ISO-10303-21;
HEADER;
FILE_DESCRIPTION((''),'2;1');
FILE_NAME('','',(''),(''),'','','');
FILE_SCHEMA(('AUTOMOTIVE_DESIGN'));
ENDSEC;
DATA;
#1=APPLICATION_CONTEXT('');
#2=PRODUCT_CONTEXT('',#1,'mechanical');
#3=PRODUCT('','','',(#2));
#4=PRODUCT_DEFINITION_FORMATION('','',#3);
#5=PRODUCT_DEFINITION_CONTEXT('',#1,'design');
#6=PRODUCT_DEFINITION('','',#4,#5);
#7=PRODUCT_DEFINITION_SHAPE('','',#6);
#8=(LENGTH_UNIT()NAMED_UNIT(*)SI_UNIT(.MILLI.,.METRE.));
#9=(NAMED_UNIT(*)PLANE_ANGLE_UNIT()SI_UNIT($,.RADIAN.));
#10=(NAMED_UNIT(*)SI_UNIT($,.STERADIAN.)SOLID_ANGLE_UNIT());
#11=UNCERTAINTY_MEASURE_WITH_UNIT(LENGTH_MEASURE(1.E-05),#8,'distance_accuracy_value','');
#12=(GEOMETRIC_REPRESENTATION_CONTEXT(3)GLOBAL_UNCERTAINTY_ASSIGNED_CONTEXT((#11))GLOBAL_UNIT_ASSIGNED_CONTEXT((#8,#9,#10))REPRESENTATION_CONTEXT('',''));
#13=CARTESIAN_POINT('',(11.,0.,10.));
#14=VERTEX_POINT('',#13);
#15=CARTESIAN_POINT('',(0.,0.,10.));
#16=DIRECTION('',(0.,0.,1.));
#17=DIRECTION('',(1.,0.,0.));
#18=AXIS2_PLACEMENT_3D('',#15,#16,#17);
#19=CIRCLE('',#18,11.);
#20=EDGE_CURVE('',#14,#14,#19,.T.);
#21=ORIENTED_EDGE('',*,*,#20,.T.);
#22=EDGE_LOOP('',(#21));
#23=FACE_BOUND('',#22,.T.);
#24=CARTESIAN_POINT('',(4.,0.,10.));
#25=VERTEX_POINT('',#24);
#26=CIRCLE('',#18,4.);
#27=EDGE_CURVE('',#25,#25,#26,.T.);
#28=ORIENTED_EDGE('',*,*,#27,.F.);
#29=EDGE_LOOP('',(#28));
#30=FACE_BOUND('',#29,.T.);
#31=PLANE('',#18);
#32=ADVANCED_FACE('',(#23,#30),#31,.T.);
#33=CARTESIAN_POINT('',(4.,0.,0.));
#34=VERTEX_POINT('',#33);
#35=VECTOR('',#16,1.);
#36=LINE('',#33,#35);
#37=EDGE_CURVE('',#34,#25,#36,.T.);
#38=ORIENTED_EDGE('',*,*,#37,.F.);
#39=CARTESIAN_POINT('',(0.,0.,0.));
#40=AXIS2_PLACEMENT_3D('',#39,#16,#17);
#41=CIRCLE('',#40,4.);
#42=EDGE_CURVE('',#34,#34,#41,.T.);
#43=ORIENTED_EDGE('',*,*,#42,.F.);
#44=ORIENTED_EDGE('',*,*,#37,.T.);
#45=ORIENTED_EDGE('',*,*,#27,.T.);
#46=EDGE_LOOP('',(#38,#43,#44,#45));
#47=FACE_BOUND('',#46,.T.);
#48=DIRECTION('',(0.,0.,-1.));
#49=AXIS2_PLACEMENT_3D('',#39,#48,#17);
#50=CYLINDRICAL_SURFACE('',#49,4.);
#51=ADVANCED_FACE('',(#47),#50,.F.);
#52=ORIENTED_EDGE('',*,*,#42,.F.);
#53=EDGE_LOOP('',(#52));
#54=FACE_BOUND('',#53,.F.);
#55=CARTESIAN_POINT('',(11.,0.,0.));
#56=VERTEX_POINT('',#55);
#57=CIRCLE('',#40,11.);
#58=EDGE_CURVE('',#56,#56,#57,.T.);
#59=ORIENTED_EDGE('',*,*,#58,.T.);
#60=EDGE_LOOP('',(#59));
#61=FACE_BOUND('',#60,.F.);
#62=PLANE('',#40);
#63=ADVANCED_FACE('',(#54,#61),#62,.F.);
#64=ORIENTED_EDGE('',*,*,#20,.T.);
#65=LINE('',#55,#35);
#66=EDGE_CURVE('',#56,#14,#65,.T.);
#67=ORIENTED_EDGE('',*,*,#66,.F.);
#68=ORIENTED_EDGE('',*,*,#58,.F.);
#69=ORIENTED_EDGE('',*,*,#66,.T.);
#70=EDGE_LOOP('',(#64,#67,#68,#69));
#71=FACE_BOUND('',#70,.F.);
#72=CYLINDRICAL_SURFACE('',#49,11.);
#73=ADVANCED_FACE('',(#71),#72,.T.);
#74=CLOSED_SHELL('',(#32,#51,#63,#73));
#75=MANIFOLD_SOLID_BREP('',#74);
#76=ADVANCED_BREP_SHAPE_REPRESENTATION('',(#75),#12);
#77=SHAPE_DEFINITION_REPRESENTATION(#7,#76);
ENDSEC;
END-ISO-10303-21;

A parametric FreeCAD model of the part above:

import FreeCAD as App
import Part
import Sketcher
Q = App.Units.Quantity

doc = App.newDocument("Part")
body = doc.addObject("PartDesign::Body", "Body")

# Sketch on XY plane
sketch1 = body.newObject("Sketcher::SketchObject", "Sketch")
sketch1.AttachmentSupport = (doc.getObject("XY_Plane"), [""])
sketch1.MapMode = "FlatFace"
sketch1.addGeometry([
    Part.Circle(App.Vector(0, 0, 0), App.Vector(0, 0, 1), 11),
    Part.Circle(App.Vector(0, 0, 0), App.Vector(0, 0, 1), 4),
], False)
sketch1.addConstraint([
    Sketcher.Constraint("Coincident", 0, 3, -1, 1),
    Sketcher.Constraint("Coincident", 1, 3, -1, 1),
    Sketcher.Constraint("Diameter", 0, Q("22 mm")),
    Sketcher.Constraint("Diameter", 1, Q("8 mm")),
])
pad1 = body.newObject("PartDesign::Pad", "Pad")
pad1.Profile = sketch1
pad1.Length = 10

doc.recompute()
